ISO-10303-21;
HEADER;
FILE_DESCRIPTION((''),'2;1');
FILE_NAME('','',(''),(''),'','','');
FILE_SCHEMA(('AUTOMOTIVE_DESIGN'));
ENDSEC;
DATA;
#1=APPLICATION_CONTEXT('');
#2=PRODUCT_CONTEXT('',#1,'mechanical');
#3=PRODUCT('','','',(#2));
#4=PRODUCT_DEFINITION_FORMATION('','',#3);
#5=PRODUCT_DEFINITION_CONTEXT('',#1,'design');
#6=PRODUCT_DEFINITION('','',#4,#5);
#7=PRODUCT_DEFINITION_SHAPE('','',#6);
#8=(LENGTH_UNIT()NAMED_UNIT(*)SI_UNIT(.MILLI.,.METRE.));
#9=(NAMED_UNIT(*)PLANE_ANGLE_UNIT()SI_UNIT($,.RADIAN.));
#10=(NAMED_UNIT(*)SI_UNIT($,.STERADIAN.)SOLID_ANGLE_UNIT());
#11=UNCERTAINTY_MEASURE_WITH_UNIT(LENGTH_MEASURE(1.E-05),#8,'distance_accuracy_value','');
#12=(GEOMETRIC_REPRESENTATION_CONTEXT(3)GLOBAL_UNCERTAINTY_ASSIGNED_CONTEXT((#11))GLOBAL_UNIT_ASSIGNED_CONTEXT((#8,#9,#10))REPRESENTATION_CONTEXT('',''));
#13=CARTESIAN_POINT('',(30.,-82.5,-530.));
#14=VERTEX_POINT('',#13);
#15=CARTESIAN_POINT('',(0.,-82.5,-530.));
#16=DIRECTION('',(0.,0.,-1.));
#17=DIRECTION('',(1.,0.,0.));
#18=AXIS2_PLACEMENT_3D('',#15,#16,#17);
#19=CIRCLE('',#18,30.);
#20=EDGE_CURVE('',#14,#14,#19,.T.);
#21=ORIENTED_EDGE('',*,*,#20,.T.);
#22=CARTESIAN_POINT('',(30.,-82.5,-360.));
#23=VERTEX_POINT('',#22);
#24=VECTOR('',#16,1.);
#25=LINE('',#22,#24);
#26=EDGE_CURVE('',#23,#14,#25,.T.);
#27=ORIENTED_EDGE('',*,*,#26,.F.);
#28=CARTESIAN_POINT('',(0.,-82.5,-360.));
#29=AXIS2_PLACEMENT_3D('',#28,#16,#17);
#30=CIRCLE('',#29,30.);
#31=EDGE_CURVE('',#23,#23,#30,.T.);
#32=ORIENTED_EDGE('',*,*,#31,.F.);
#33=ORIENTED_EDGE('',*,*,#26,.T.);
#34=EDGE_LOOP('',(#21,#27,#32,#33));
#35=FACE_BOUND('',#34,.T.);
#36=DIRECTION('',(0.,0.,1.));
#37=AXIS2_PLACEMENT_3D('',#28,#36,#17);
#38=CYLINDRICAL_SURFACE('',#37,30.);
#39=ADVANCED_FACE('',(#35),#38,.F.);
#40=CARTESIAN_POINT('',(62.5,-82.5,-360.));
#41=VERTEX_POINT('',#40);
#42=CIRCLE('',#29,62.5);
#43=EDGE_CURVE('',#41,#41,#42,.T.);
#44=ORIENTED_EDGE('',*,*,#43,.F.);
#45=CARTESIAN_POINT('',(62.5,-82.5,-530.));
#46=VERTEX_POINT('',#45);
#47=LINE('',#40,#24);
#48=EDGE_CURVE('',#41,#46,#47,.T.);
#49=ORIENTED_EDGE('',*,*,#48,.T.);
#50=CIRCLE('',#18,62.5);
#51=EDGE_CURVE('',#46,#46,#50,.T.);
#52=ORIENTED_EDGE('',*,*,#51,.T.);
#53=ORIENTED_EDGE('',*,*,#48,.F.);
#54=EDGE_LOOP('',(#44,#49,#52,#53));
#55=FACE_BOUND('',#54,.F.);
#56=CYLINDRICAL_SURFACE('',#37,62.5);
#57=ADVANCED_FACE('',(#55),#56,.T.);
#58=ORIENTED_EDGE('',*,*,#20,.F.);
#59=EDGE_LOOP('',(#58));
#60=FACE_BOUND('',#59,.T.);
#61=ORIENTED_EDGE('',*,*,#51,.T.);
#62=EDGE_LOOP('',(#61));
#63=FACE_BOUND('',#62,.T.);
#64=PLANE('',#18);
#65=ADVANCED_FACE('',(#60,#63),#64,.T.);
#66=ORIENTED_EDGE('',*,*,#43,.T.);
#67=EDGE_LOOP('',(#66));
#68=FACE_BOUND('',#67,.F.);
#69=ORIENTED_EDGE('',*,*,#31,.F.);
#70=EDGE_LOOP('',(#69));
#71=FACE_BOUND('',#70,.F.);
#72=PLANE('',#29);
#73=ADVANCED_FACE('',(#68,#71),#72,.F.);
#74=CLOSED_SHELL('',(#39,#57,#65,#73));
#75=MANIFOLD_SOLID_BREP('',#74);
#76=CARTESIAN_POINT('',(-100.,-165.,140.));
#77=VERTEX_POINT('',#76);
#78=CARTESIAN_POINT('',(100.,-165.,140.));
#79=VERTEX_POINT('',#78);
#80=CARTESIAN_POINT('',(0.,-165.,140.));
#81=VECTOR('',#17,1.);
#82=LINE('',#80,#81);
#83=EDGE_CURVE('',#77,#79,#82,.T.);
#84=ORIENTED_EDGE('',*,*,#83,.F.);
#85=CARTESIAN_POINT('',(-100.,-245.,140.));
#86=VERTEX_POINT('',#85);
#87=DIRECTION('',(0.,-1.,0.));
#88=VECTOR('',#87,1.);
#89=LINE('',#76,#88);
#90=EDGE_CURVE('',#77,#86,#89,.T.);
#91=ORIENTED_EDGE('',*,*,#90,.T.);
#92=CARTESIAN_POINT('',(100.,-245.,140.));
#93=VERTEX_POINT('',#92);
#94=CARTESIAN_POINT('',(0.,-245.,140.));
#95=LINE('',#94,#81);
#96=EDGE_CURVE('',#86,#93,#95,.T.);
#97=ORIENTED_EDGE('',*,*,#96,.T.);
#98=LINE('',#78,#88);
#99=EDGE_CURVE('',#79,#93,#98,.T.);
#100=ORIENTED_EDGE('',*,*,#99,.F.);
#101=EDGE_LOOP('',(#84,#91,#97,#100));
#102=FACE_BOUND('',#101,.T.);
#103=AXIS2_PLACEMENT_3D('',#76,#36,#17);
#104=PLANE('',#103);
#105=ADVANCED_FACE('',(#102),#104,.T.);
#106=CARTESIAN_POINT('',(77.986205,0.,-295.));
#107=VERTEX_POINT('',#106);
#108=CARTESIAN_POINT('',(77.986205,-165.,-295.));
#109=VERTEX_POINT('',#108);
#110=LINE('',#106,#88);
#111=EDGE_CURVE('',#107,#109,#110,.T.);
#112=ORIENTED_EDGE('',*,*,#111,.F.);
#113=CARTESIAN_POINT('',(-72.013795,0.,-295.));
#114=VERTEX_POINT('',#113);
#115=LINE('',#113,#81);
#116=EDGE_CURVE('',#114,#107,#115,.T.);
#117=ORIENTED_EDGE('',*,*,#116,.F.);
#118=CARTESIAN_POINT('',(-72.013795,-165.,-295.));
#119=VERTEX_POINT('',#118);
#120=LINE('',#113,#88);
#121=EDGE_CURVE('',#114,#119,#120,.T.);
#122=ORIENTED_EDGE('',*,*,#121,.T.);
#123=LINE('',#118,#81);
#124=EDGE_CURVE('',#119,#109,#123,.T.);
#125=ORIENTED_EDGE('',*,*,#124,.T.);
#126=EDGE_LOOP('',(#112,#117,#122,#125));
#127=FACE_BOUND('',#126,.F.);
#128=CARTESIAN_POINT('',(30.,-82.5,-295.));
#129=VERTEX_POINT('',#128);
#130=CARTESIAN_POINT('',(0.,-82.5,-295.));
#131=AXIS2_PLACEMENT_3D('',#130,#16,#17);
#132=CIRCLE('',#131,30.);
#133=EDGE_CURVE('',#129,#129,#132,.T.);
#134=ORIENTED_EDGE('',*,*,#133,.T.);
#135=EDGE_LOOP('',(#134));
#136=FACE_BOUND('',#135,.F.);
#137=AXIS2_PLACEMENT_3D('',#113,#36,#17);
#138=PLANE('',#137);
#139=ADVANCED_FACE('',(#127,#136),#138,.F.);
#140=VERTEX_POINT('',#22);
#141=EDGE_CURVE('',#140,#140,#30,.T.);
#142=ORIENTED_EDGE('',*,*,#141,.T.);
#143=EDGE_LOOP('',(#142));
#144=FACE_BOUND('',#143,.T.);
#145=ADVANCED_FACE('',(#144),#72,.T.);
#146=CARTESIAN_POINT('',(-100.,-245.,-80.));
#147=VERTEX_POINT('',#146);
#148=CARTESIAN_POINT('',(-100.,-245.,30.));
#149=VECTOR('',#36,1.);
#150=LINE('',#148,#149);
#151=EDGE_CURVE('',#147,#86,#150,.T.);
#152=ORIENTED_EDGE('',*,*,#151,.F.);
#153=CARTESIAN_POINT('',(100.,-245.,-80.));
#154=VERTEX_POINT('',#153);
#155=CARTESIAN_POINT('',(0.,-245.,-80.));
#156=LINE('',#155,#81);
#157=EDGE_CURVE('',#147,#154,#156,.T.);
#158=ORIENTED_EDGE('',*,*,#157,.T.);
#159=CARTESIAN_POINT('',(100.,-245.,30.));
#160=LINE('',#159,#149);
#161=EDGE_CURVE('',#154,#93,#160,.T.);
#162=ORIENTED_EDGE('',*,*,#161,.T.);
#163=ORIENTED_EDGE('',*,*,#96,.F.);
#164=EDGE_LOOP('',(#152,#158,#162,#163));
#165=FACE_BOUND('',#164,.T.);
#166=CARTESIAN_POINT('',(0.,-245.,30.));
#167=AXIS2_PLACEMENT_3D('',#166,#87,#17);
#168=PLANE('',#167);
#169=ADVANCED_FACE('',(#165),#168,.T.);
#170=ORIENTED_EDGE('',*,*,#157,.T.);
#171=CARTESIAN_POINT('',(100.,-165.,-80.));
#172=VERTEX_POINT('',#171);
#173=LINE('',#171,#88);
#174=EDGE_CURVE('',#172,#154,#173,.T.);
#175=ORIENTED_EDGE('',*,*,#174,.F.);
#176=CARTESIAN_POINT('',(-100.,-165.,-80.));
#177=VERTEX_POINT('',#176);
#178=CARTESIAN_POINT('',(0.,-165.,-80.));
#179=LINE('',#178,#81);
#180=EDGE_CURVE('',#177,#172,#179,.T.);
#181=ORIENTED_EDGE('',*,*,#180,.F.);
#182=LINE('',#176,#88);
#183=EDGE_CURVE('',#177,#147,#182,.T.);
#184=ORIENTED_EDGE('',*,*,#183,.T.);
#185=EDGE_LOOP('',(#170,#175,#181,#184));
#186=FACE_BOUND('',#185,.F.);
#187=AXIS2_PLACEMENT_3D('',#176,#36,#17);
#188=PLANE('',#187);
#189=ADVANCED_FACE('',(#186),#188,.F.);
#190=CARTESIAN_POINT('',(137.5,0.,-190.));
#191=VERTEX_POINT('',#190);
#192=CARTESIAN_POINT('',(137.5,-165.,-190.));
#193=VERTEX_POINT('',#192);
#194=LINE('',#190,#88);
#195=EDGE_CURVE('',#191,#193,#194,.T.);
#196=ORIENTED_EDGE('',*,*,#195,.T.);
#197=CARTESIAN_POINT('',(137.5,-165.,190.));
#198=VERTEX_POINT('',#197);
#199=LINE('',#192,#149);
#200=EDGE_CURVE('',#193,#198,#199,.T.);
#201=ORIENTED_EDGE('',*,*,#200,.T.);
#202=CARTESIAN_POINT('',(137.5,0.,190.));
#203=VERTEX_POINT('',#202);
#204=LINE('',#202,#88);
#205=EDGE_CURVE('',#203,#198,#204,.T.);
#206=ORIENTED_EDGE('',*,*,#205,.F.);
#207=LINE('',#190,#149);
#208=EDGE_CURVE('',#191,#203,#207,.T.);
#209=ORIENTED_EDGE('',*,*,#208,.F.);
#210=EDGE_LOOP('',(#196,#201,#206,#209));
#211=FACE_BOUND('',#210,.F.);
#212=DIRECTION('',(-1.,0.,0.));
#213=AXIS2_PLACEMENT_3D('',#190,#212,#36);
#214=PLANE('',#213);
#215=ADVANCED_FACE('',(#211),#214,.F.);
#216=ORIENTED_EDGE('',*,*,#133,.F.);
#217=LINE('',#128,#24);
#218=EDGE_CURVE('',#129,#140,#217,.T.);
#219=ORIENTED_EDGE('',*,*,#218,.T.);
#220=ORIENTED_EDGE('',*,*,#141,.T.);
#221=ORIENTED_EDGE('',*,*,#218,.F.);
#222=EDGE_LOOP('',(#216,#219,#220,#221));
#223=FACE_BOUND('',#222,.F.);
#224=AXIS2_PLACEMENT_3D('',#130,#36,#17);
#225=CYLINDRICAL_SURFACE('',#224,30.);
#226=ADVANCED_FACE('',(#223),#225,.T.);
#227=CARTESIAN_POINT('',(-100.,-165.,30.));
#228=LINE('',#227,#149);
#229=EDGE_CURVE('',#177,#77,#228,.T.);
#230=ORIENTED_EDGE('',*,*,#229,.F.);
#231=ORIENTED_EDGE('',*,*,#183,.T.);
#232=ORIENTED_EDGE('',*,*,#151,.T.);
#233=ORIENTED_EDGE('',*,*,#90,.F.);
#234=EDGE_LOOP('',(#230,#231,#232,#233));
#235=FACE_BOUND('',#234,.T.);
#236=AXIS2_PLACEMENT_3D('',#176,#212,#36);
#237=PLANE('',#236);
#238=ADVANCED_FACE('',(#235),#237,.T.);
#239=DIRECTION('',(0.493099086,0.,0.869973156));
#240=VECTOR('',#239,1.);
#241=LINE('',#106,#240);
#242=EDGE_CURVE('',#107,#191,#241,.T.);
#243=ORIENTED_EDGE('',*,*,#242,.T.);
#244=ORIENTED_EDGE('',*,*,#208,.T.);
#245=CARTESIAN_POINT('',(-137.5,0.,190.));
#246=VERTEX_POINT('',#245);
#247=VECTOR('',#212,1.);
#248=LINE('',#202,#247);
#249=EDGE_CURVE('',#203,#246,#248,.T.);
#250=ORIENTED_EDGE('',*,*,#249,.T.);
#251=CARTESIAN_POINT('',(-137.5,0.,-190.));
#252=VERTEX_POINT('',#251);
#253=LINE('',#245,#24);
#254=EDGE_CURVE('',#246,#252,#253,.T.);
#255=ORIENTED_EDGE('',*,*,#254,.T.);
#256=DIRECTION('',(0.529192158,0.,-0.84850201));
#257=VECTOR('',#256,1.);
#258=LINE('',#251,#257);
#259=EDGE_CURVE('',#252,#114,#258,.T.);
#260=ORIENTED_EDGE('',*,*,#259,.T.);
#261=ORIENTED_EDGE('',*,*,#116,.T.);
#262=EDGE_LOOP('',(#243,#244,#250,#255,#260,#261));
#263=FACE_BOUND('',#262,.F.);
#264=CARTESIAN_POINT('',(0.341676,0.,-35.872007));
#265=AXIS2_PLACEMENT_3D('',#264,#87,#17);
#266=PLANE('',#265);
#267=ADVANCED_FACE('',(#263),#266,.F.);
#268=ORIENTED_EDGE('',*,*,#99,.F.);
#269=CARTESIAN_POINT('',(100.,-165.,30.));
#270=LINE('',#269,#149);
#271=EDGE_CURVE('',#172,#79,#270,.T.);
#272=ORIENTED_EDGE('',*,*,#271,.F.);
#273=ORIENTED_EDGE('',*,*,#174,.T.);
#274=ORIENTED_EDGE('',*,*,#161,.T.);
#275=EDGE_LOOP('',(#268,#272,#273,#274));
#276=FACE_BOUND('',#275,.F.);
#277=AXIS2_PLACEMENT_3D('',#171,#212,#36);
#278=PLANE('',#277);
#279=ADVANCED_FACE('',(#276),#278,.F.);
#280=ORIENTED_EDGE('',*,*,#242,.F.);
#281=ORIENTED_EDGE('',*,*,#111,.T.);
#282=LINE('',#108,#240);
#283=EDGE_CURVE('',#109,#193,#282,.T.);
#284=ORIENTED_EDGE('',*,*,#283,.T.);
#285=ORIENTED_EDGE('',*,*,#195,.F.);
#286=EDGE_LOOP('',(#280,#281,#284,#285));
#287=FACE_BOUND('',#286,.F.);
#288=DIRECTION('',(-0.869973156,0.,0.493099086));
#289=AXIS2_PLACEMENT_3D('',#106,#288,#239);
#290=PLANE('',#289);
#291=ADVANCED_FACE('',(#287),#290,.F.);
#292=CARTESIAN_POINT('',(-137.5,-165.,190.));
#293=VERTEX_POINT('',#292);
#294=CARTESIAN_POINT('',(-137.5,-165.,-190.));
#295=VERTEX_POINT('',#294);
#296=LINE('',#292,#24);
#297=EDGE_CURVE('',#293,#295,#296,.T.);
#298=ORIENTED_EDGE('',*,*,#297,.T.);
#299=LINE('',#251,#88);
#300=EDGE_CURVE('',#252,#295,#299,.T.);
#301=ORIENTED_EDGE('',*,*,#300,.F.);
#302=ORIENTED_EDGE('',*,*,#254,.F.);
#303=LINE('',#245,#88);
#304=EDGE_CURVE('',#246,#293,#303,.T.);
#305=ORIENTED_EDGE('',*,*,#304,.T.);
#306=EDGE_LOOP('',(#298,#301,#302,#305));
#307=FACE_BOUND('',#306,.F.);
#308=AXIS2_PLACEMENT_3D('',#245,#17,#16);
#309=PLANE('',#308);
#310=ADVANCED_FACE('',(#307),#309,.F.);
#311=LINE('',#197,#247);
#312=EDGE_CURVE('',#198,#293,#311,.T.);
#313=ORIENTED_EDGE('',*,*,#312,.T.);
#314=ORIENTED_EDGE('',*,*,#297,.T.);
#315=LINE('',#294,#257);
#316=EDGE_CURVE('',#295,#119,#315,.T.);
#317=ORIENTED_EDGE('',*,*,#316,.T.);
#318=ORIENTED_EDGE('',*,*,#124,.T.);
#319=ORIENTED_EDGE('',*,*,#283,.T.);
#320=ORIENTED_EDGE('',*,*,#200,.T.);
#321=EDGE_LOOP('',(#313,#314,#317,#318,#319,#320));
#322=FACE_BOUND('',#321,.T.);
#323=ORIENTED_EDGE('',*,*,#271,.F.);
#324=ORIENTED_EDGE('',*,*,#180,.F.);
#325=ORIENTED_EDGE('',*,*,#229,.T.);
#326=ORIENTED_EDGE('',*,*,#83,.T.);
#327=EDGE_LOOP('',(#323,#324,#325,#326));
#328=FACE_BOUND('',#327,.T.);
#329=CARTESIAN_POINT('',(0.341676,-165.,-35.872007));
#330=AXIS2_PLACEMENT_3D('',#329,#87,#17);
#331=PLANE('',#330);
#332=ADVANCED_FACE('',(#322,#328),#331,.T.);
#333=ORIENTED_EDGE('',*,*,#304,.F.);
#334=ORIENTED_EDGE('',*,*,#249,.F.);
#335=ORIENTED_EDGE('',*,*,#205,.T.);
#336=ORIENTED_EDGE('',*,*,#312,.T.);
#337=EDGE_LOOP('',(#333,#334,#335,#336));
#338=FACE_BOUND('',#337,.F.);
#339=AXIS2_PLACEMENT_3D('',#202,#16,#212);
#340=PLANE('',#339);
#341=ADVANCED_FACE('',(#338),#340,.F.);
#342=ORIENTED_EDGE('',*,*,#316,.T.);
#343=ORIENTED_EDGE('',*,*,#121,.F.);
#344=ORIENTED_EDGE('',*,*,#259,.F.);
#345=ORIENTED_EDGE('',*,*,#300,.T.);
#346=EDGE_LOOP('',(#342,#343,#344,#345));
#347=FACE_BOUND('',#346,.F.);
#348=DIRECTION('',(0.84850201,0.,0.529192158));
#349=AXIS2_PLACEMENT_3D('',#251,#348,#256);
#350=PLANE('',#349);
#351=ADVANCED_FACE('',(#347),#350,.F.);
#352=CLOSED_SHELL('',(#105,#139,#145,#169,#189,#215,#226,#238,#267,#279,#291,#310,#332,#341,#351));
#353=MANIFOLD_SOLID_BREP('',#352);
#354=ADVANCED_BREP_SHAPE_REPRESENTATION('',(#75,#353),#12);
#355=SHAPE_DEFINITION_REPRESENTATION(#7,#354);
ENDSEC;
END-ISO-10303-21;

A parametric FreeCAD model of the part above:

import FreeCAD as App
import Part
import Sketcher

V = App.Vector

doc = App.newDocument("Part")
body = doc.addObject("PartDesign::Body", "Body")
body.AllowCompound = True

sketch1 = body.newObject("Sketcher::SketchObject", "Sketch")
sketch1.AttachmentSupport = (doc.getObject("XZ_Plane"), [""])
sketch1.MapMode = "FlatFace"
sketch1.addGeometry([
    Part.LineSegment(V(138, -190, 0), V(138, 190, 0)),
    Part.LineSegment(V(138, 190, 0), V(-138, 190, 0)),
    Part.LineSegment(V(-138, 190, 0), V(-138, -190, 0)),
    Part.LineSegment(V(-138, -190, 0), V(-72, -295, 0)),
    Part.LineSegment(V(-72, -295, 0), V(78, -295, 0)),
    Part.LineSegment(V(78, -295, 0), V(138, -190, 0)),
], False)
sketch1.addConstraint([
    Sketcher.Constraint("Coincident", 0, 2, 1, 1),
    Sketcher.Constraint("Coincident", 1, 2, 2, 1),
    Sketcher.Constraint("Coincident", 2, 2, 3, 1),
    Sketcher.Constraint("Coincident", 3, 2, 4, 1),
    Sketcher.Constraint("Coincident", 4, 2, 5, 1),
    Sketcher.Constraint("Coincident", 5, 2, 0, 1),
    Sketcher.Constraint("Vertical", 0),
    Sketcher.Constraint("Horizontal", 1),
    Sketcher.Constraint("Vertical", 2),
    Sketcher.Constraint("Horizontal", 4),
    Sketcher.Constraint("Symmetric", 0, 2, 2, 2, -1, 1),
    Sketcher.Constraint("Horizontal", 2, 2, 5, 2),
    Sketcher.Constraint("DistanceX", 1, 2, 1, 1, 275.0),
    Sketcher.Constraint("DistanceX", 4, 1, 4, 2, 150.0),
    Sketcher.Constraint("DistanceY", 0, 1, 0, 2, 380.0),
    Sketcher.Constraint("DistanceY", 3, 2, -1, 1, 295.0),
    Sketcher.Constraint("Distance", 5, 120.693379),
])
pad1 = body.newObject("PartDesign::Pad", "Pad")
pad1.Profile = sketch1
pad1.Length = 165

sketch2 = body.newObject("Sketcher::SketchObject", "Sketch001")
sketch2.AttachmentSupport = (doc.getObject("XY_Plane"), [""])
sketch2.MapMode = "FlatFace"
sketch2.AttachmentOffset = App.Placement(V(0, 0, -295), App.Rotation())
sketch2.addGeometry(Part.Circle(V(0, -82, 0), V(0, 0, 1), 30), False)
sketch2.addConstraint([
    Sketcher.Constraint("PointOnObject", 0, 3, -2),
    Sketcher.Constraint("Diameter", 0, 60.0),
    Sketcher.Constraint("DistanceY", 0, 3, -1, 1, 82.5),
])
pad2 = body.newObject("PartDesign::Pad", "Pad001")
pad2.Profile = sketch2
pad2.Length = 65
pad2.Reversed = True

sketch3 = body.newObject("Sketcher::SketchObject", "Sketch002")
sketch3.AttachmentSupport = (doc.getObject("XY_Plane"), [""])
sketch3.MapMode = "FlatFace"
sketch3.AttachmentOffset = App.Placement(V(0, 0, -360), App.Rotation())
sketch3.addGeometry([
    Part.Circle(V(0, -82, 0), V(0, 0, 1), 62),
    Part.Circle(V(0, -82, 0), V(0, 0, 1), 30),
], False)
sketch3.addConstraint([
    Sketcher.Constraint("Coincident", 1, 3, 0, 3),
    Sketcher.Constraint("PointOnObject", 0, 3, -2),
    Sketcher.Constraint("Diameter", 0, 125.0),
    Sketcher.Constraint("Diameter", 1, 60.0),
    Sketcher.Constraint("DistanceY", 0, 3, -1, 1, 82.5),
])
pad3 = body.newObject("PartDesign::Pad", "Pad002")
pad3.Profile = sketch3
pad3.Length = 170
pad3.Reversed = True

sketch4 = body.newObject("Sketcher::SketchObject", "Sketch003")
sketch4.AttachmentSupport = (doc.getObject("XZ_Plane"), [""])
sketch4.MapMode = "FlatFace"
sketch4.AttachmentOffset = App.Placement(V(0, 0, 165), App.Rotation())
sketch4.addGeometry([
    Part.LineSegment(V(-100, 140, 0), V(-100, -80, 0)),
    Part.LineSegment(V(-100, -80, 0), V(100, -80, 0)),
    Part.LineSegment(V(100, -80, 0), V(100, 140, 0)),
    Part.LineSegment(V(100, 140, 0), V(-100, 140, 0)),
], False)
sketch4.addConstraint([
    Sketcher.Constraint("Coincident", 0, 2, 1, 1),
    Sketcher.Constraint("Coincident", 1, 2, 2, 1),
    Sketcher.Constraint("Coincident", 2, 2, 3, 1),
    Sketcher.Constraint("Coincident", 3, 2, 0, 1),
    Sketcher.Constraint("Vertical", 0),
    Sketcher.Constraint("Horizontal", 1),
    Sketcher.Constraint("Vertical", 2),
    Sketcher.Constraint("Horizontal", 3),
    Sketcher.Constraint("DistanceX", 1, 1, 1, 2, 200.0),
    Sketcher.Constraint("DistanceY", 0, 2, 0, 1, 220.0),
    Sketcher.Constraint("DistanceX", 0, 2, -1, 1, 100.0),
    Sketcher.Constraint("DistanceY", 0, 2, -1, 1, 80.0),
])
pad4 = body.newObject("PartDesign::Pad", "Pad003")
pad4.Profile = sketch4
pad4.Length = 80

doc.recompute()
